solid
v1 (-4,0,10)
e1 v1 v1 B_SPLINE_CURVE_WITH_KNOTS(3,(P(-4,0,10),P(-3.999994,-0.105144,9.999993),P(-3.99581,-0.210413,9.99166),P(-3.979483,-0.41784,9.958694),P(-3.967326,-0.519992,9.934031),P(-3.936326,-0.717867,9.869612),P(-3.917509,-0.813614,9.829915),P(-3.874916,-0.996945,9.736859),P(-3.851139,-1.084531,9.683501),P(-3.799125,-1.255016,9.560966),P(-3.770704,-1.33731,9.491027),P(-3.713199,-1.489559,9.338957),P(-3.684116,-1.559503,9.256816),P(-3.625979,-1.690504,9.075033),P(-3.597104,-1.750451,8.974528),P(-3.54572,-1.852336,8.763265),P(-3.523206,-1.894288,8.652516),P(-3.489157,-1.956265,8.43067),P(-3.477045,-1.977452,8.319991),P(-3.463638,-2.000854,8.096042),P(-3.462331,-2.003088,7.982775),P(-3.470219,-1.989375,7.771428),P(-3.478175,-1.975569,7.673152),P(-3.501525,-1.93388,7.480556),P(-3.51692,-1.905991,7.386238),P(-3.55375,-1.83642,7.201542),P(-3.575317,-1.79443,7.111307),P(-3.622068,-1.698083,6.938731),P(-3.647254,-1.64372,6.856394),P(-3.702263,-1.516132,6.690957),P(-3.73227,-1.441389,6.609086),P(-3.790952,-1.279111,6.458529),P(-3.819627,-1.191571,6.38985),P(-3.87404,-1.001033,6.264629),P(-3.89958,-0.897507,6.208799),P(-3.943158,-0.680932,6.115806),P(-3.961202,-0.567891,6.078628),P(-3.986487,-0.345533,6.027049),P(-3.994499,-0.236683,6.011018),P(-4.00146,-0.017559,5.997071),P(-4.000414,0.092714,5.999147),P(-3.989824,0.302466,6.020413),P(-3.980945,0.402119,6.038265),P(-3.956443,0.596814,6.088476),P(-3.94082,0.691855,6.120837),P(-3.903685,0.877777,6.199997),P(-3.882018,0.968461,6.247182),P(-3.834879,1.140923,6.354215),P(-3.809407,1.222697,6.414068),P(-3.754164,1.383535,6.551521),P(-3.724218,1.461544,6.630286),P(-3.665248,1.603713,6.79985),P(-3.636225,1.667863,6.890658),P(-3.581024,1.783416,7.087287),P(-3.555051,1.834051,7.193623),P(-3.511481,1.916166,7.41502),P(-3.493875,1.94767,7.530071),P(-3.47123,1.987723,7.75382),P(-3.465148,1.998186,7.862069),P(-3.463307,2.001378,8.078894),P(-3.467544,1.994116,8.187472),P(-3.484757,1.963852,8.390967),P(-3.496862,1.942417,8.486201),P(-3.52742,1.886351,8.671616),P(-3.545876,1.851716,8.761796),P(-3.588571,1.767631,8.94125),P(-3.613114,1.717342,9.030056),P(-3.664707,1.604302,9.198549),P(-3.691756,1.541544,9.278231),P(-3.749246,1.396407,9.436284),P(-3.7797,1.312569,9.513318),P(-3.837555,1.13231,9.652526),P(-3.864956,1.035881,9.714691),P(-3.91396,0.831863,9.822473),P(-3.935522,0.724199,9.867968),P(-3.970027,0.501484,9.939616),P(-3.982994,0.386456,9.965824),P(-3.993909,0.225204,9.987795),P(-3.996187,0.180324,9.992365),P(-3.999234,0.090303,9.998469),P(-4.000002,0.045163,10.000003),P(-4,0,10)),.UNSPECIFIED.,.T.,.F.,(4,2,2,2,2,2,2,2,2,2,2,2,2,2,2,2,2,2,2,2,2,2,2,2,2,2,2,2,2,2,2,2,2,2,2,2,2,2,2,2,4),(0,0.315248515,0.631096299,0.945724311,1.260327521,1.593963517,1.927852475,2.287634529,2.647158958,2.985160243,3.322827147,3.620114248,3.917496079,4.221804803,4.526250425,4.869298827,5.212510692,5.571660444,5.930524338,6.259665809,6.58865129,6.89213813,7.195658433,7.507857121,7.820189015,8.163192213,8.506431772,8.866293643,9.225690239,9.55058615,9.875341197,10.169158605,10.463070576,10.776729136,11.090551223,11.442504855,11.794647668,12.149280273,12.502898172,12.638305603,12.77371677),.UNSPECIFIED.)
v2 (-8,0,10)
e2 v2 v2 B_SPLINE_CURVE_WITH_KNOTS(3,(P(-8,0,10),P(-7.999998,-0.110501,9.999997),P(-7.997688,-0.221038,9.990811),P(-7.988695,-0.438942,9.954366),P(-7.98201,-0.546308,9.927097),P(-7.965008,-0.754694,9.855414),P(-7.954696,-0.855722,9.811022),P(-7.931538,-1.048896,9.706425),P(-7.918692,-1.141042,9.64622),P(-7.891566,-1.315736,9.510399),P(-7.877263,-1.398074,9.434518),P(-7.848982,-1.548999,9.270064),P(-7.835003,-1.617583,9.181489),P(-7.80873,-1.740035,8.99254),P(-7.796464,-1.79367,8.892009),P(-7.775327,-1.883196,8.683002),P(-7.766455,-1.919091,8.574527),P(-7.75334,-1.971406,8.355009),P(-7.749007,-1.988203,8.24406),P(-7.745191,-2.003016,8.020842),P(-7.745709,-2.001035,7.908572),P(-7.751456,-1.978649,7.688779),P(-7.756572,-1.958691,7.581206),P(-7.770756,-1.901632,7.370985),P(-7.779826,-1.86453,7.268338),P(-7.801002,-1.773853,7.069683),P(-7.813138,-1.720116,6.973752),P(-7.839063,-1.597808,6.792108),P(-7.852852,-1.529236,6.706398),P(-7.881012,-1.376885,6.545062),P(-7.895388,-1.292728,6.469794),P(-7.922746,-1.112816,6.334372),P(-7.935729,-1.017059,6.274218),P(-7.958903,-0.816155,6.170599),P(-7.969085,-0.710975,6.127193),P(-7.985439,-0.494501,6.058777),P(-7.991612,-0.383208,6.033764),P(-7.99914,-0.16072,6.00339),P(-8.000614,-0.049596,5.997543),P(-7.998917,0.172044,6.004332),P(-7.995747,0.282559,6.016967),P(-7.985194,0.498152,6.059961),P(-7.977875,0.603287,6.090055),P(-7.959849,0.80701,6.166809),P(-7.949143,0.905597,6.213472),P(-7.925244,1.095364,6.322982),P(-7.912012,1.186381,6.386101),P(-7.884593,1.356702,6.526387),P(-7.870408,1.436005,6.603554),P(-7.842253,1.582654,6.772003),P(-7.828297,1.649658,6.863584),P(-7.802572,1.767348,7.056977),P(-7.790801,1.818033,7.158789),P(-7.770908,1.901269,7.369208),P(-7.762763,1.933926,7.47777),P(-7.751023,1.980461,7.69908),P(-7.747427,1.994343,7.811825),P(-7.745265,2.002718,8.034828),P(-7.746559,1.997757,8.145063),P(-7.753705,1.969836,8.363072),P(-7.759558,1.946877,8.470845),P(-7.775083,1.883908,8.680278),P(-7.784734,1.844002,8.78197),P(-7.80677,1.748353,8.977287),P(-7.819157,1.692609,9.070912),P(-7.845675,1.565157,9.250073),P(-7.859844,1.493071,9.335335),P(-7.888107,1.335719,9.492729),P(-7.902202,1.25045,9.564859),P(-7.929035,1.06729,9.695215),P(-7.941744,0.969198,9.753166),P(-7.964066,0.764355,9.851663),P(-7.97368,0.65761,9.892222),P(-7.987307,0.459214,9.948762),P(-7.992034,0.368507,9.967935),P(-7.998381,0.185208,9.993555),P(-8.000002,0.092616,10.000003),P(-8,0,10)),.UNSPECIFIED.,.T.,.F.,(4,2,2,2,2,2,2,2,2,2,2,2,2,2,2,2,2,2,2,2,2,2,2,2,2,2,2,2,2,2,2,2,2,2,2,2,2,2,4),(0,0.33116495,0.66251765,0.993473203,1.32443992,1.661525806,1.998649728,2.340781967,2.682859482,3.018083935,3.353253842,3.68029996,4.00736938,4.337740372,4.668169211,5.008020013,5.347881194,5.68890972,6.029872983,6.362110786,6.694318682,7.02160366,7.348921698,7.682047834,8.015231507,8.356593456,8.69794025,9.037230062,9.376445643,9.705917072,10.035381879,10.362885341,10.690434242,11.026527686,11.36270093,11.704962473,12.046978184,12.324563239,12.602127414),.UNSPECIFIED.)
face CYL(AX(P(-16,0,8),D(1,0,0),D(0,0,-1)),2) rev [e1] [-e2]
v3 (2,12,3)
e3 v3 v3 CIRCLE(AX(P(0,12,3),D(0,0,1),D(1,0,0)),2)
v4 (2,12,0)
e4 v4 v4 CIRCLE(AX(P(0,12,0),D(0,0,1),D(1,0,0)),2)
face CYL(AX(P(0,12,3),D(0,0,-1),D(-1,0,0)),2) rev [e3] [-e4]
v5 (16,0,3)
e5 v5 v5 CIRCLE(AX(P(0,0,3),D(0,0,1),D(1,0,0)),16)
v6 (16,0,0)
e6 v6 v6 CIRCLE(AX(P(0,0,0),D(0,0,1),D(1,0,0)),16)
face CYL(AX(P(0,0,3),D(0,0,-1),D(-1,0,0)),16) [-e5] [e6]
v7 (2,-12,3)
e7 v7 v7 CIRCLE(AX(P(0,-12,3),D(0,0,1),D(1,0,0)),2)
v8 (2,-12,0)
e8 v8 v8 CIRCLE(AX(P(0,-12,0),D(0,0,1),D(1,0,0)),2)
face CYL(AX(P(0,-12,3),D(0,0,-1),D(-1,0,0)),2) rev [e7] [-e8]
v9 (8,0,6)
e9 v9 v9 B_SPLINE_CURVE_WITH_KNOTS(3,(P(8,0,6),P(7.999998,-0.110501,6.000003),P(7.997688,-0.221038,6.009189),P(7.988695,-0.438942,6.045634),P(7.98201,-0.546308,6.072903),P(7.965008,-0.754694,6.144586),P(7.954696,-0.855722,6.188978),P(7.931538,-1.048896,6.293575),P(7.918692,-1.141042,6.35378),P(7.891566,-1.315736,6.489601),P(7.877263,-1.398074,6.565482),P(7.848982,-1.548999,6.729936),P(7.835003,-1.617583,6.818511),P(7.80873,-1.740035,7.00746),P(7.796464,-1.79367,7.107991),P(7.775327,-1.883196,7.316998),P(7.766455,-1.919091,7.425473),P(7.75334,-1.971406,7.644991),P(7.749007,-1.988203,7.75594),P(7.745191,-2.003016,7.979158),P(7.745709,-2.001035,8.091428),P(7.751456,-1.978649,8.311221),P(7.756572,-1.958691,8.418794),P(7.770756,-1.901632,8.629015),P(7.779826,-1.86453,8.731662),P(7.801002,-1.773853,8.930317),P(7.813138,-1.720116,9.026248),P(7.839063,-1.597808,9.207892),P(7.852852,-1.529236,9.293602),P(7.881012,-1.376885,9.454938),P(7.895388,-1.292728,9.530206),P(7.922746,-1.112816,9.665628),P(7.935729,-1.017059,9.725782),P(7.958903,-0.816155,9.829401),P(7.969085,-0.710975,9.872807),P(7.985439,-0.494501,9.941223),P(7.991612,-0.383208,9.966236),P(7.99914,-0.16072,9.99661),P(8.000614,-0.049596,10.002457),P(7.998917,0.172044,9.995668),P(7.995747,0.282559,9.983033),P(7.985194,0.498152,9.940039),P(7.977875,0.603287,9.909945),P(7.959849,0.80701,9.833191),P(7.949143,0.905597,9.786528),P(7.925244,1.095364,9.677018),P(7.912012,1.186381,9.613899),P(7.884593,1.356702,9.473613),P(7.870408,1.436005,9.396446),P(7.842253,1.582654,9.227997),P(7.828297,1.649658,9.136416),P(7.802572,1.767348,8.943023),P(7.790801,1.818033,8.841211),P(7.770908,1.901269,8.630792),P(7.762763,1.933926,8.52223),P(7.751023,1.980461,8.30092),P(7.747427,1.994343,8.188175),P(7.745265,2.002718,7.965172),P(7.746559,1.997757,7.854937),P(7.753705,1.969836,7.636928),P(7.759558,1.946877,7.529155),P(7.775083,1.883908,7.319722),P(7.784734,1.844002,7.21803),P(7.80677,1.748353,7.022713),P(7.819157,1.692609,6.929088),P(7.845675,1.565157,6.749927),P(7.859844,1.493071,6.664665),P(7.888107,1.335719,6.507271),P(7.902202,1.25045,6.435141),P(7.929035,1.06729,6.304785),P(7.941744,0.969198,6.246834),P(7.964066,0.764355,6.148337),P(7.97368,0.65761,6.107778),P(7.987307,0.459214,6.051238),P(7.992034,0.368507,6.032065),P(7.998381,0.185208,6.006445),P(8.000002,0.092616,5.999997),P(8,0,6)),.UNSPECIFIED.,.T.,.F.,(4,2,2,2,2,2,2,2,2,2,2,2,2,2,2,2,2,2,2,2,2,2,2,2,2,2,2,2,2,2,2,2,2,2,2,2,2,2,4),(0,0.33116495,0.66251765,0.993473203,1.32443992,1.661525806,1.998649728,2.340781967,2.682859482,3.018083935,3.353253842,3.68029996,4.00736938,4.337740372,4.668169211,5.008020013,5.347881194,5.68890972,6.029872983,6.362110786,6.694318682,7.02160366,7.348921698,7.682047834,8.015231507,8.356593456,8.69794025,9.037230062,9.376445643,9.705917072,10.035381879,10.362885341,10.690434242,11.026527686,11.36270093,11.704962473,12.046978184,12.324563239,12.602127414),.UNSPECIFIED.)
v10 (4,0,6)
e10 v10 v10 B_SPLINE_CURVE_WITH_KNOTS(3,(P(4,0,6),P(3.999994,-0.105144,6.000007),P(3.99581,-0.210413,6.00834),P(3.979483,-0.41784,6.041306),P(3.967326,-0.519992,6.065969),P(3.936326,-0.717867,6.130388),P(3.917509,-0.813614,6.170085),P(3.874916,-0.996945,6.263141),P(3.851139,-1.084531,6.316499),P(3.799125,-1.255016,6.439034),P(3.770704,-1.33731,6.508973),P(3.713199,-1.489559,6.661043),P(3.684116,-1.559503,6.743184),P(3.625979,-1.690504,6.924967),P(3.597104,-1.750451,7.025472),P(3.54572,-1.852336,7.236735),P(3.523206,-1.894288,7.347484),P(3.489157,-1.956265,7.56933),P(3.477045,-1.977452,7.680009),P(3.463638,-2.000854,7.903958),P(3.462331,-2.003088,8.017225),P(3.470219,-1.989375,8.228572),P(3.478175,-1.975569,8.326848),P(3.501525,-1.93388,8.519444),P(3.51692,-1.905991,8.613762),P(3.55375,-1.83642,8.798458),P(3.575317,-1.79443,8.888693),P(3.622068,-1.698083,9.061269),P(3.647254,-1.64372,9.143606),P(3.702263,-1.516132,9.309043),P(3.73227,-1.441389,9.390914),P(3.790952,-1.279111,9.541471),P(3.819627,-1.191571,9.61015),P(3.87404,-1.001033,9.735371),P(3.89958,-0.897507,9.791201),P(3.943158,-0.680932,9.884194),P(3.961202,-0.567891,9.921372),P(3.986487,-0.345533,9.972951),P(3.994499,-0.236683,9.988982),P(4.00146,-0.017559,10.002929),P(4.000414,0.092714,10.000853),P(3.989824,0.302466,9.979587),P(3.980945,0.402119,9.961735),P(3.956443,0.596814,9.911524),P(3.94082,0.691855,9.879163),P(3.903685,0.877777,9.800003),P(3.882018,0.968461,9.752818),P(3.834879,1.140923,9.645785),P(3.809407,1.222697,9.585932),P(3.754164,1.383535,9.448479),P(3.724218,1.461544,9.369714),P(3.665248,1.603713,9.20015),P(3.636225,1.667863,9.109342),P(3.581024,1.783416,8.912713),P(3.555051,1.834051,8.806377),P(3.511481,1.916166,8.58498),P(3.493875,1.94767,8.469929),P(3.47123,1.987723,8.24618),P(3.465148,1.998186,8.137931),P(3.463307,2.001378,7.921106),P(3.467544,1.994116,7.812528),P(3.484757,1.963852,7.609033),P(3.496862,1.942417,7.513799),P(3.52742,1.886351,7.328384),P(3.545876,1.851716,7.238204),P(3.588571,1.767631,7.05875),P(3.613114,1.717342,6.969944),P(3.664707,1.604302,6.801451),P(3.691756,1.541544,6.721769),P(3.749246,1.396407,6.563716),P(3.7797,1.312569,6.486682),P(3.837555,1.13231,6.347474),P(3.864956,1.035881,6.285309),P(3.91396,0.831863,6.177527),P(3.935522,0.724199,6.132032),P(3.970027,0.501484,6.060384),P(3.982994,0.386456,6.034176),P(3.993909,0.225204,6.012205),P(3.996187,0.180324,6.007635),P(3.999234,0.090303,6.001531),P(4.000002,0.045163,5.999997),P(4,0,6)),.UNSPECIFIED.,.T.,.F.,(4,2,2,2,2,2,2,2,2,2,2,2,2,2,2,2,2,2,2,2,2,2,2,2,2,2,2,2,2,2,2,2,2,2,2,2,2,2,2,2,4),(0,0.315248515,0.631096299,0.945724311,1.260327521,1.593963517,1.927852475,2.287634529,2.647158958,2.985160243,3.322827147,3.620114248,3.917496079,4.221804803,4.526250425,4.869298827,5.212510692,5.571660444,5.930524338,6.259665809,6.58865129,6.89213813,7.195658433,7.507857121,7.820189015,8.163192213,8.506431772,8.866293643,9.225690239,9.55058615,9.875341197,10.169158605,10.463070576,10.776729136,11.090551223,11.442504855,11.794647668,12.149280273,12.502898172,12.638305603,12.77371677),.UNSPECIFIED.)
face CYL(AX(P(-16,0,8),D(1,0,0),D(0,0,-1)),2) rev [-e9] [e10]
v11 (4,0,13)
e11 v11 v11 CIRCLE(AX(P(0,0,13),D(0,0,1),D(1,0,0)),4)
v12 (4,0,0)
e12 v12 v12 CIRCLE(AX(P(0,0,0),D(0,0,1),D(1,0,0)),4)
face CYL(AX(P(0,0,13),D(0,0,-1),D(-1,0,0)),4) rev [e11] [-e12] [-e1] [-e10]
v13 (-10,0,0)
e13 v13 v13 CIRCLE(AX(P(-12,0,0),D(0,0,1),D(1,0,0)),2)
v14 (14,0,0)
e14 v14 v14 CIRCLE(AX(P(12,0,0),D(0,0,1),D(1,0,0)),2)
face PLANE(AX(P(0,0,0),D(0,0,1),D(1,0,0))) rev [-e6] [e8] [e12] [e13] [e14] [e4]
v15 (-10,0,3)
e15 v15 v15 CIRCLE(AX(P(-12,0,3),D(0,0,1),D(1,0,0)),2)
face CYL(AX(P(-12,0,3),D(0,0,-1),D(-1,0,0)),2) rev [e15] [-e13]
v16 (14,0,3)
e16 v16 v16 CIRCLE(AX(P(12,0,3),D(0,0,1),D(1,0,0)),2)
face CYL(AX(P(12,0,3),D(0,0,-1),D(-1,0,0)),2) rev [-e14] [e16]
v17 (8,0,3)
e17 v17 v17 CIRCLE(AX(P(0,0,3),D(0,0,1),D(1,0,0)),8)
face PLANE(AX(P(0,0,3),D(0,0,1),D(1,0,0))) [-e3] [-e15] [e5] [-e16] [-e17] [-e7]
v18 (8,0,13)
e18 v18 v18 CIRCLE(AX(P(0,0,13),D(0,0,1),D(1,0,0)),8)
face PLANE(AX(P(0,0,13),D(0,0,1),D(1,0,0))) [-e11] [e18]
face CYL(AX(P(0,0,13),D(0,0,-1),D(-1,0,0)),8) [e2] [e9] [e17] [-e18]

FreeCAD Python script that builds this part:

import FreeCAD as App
import Part
import Sketcher
from FreeCAD import Vector
Q = App.Units.Quantity

doc = App.newDocument("Part")
body = doc.addObject("PartDesign::Body", "Body")

# Sketch on XY plane
sketch1 = body.newObject("Sketcher::SketchObject", "Sketch")
sketch1.AttachmentSupport = (doc.getObject("XY_Plane"), [""])
sketch1.MapMode = "FlatFace"
sketch1.addGeometry([
    Part.Circle(Vector(0, 0, 0), Vector(0, 0, 1), 16),  # 0
    Part.Circle(Vector(12, 0, 0), Vector(0, 0, 1), 2),  # 1
    Part.Circle(Vector(0, -12, 0), Vector(0, 0, 1), 2),  # 2
    Part.Circle(Vector(0, 0, 0), Vector(0, 0, 1), 8),  # 3
    Part.Circle(Vector(0, 12, 0), Vector(0, 0, 1), 2),  # 4
    Part.Circle(Vector(-12, 0, 0), Vector(0, 0, 1), 2),  # 5
], False)
sketch1.addConstraint([
    Sketcher.Constraint("Coincident", 0, 3, -1, 1),
    Sketcher.Constraint("Coincident", 3, 3, -1, 1),
    Sketcher.Constraint("Equal", 1, 2),
    Sketcher.Constraint("Equal", 2, 4),
    Sketcher.Constraint("Equal", 4, 5),
    Sketcher.Constraint("Symmetric", 2, 3, 4, 3, -1, 1),
    Sketcher.Constraint("Symmetric", 1, 3, 5, 3, -1, 1),
    Sketcher.Constraint("PointOnObject", 1, 3, -1),
    Sketcher.Constraint("PointOnObject", 2, 3, -2),
    Sketcher.Constraint("Diameter", 0, Q("32 mm")),
    Sketcher.Constraint("Diameter", 1, Q("4 mm")),
    Sketcher.Constraint("Diameter", 3, Q("16 mm")),
    Sketcher.Constraint("DistanceX", -1, 1, 1, 3, Q("12 mm")),
    Sketcher.Constraint("DistanceY", 2, 3, -1, 1, Q("12 mm")),
])
pad1 = body.newObject("PartDesign::Pad", "Pad")
pad1.Profile = sketch1
pad1.Length = 3

# Sketch on XY plane
sketch2 = body.newObject("Sketcher::SketchObject", "Sketch001")
sketch2.AttachmentSupport = (doc.getObject("XY_Plane"), [""])
sketch2.MapMode = "FlatFace"
sketch2.addGeometry([
    Part.Circle(Vector(0, 0, 0), Vector(0, 0, 1), 8),
    Part.Circle(Vector(0, 0, 0), Vector(0, 0, 1), 4),
], False)
sketch2.addConstraint([
    Sketcher.Constraint("Coincident", 0, 3, -1, 1),
    Sketcher.Constraint("Coincident", 1, 3, -1, 1),
    Sketcher.Constraint("Diameter", 0, Q("16 mm")),
    Sketcher.Constraint("Diameter", 1, Q("8 mm")),
])
pad2 = body.newObject("PartDesign::Pad", "Pad001")
pad2.Profile = sketch2
pad2.Length = 13

# Sketch on YZ plane
sketch3 = body.newObject("Sketcher::SketchObject", "Sketch002")
sketch3.AttachmentSupport = (doc.getObject("YZ_Plane"), [""])
sketch3.MapMode = "FlatFace"
sketch3.addGeometry(Part.Circle(Vector(0, 8, 0), Vector(0, 0, 1), 2), False)
sketch3.addConstraint([
    Sketcher.Constraint("PointOnObject", 0, 3, -2),
    Sketcher.Constraint("Diameter", 0, Q("4 mm")),
    Sketcher.Constraint("DistanceY", -1, 1, 0, 3, Q("8 mm")),
])
pocket1 = body.newObject("PartDesign::Pocket", "Pocket")
pocket1.Profile = sketch3
pocket1.Type = "ThroughAll"
pocket1.Midplane = True

doc.recompute()
